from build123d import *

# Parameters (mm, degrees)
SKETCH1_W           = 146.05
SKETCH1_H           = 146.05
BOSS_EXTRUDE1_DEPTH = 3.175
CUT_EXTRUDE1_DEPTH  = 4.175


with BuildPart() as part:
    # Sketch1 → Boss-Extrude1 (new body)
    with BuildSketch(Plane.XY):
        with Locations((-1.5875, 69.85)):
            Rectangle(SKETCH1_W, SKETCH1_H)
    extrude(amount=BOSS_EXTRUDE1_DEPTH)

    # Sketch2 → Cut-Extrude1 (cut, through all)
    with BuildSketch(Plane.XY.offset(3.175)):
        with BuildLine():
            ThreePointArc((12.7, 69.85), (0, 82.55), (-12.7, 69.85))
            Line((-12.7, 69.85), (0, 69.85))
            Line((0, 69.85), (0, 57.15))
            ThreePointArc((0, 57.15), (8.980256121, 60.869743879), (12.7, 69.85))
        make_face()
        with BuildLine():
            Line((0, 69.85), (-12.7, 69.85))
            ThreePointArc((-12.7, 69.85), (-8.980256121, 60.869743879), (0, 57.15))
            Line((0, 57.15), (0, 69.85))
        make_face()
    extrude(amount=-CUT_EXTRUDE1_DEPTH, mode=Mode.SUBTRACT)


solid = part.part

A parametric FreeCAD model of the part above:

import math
import FreeCAD as App
import Part
import Sketcher
Q = App.Units.Quantity

doc = App.newDocument("Part")
body = doc.addObject("PartDesign::Body", "Body")

# Sketch on XY plane
sketch1 = body.newObject("Sketcher::SketchObject", "Sketch")
sketch1.AttachmentSupport = (doc.getObject("XY_Plane"), [""])
sketch1.MapMode = "FlatFace"
sketch1.addGeometry([
    Part.LineSegment(App.Vector(-74.6125, 142.875, 0), App.Vector(-74.6125, -3.175, 0)),
    Part.LineSegment(App.Vector(-74.6125, -3.175, 0), App.Vector(71.4375, -3.175, 0)),
    Part.LineSegment(App.Vector(71.4375, -3.175, 0), App.Vector(71.4375, 142.875, 0)),
    Part.LineSegment(App.Vector(71.4375, 142.875, 0), App.Vector(-74.6125, 142.875, 0)),
], False)
sketch1.addConstraint([
    Sketcher.Constraint("Coincident", 0, 2, 1, 1),
    Sketcher.Constraint("Coincident", 1, 2, 2, 1),
    Sketcher.Constraint("Coincident", 2, 2, 3, 1),
    Sketcher.Constraint("Coincident", 3, 2, 0, 1),
    Sketcher.Constraint("Vertical", 0),
    Sketcher.Constraint("Horizontal", 1),
    Sketcher.Constraint("Vertical", 2),
    Sketcher.Constraint("Horizontal", 3),
    Sketcher.Constraint("Equal", 3, 0),
    Sketcher.Constraint("DistanceX", 1, 1, 1, 2, Q("5.75 in")),
    Sketcher.Constraint("DistanceX", 0, 2, -1, 1, Q("2.9375 in")),
    Sketcher.Constraint("DistanceY", 0, 2, -1, 1, Q("0.125 in")),
])
pad1 = body.newObject("PartDesign::Pad", "Pad")
pad1.Profile = sketch1
pad1.Length = Q("0.125 in")

# Sketch on XY plane
sketch2 = body.newObject("Sketcher::SketchObject", "Sketch001")
sketch2.AttachmentSupport = (doc.getObject("XY_Plane"), [""])
sketch2.MapMode = "FlatFace"
sketch2.AttachmentOffset = App.Placement(App.Vector(0, 0, 0.125 * 25.4), App.Rotation())
sketch2.addGeometry([
    Part.ArcOfCircle(Part.Circle(App.Vector(0, 69.85, 0), App.Vector(0, 0, 1), 12.7), math.radians(0), math.radians(180)),
    Part.ArcOfCircle(Part.Circle(App.Vector(0, 69.85, 0), App.Vector(0, 0, 1), 12.7), math.radians(180), math.radians(270)),
    Part.ArcOfCircle(Part.Circle(App.Vector(0, 69.85, 0), App.Vector(0, 0, 1), 12.7), math.radians(-90), math.radians(0)),
], False)
sketch2.addConstraint([
    Sketcher.Constraint("Tangent", 0, 2, 1, 1),
    Sketcher.Constraint("Tangent", 1, 2, 2, 1),
    Sketcher.Constraint("Tangent", 2, 2, 0, 1),
    Sketcher.Constraint("Symmetric", 0, 2, 2, 2, -2),
    Sketcher.Constraint("PointOnObject", 1, 2, -2),
    Sketcher.Constraint("Horizontal", 2, 3, 0, 2),
    Sketcher.Constraint("Radius", 0, Q("0.5 in")),
    Sketcher.Constraint("DistanceY", -1, 1, 0, 3, Q("2.75 in")),
])
pocket1 = body.newObject("PartDesign::Pocket", "Pocket")
pocket1.Profile = sketch2
pocket1.Type = "ThroughAll"

doc.recompute()
